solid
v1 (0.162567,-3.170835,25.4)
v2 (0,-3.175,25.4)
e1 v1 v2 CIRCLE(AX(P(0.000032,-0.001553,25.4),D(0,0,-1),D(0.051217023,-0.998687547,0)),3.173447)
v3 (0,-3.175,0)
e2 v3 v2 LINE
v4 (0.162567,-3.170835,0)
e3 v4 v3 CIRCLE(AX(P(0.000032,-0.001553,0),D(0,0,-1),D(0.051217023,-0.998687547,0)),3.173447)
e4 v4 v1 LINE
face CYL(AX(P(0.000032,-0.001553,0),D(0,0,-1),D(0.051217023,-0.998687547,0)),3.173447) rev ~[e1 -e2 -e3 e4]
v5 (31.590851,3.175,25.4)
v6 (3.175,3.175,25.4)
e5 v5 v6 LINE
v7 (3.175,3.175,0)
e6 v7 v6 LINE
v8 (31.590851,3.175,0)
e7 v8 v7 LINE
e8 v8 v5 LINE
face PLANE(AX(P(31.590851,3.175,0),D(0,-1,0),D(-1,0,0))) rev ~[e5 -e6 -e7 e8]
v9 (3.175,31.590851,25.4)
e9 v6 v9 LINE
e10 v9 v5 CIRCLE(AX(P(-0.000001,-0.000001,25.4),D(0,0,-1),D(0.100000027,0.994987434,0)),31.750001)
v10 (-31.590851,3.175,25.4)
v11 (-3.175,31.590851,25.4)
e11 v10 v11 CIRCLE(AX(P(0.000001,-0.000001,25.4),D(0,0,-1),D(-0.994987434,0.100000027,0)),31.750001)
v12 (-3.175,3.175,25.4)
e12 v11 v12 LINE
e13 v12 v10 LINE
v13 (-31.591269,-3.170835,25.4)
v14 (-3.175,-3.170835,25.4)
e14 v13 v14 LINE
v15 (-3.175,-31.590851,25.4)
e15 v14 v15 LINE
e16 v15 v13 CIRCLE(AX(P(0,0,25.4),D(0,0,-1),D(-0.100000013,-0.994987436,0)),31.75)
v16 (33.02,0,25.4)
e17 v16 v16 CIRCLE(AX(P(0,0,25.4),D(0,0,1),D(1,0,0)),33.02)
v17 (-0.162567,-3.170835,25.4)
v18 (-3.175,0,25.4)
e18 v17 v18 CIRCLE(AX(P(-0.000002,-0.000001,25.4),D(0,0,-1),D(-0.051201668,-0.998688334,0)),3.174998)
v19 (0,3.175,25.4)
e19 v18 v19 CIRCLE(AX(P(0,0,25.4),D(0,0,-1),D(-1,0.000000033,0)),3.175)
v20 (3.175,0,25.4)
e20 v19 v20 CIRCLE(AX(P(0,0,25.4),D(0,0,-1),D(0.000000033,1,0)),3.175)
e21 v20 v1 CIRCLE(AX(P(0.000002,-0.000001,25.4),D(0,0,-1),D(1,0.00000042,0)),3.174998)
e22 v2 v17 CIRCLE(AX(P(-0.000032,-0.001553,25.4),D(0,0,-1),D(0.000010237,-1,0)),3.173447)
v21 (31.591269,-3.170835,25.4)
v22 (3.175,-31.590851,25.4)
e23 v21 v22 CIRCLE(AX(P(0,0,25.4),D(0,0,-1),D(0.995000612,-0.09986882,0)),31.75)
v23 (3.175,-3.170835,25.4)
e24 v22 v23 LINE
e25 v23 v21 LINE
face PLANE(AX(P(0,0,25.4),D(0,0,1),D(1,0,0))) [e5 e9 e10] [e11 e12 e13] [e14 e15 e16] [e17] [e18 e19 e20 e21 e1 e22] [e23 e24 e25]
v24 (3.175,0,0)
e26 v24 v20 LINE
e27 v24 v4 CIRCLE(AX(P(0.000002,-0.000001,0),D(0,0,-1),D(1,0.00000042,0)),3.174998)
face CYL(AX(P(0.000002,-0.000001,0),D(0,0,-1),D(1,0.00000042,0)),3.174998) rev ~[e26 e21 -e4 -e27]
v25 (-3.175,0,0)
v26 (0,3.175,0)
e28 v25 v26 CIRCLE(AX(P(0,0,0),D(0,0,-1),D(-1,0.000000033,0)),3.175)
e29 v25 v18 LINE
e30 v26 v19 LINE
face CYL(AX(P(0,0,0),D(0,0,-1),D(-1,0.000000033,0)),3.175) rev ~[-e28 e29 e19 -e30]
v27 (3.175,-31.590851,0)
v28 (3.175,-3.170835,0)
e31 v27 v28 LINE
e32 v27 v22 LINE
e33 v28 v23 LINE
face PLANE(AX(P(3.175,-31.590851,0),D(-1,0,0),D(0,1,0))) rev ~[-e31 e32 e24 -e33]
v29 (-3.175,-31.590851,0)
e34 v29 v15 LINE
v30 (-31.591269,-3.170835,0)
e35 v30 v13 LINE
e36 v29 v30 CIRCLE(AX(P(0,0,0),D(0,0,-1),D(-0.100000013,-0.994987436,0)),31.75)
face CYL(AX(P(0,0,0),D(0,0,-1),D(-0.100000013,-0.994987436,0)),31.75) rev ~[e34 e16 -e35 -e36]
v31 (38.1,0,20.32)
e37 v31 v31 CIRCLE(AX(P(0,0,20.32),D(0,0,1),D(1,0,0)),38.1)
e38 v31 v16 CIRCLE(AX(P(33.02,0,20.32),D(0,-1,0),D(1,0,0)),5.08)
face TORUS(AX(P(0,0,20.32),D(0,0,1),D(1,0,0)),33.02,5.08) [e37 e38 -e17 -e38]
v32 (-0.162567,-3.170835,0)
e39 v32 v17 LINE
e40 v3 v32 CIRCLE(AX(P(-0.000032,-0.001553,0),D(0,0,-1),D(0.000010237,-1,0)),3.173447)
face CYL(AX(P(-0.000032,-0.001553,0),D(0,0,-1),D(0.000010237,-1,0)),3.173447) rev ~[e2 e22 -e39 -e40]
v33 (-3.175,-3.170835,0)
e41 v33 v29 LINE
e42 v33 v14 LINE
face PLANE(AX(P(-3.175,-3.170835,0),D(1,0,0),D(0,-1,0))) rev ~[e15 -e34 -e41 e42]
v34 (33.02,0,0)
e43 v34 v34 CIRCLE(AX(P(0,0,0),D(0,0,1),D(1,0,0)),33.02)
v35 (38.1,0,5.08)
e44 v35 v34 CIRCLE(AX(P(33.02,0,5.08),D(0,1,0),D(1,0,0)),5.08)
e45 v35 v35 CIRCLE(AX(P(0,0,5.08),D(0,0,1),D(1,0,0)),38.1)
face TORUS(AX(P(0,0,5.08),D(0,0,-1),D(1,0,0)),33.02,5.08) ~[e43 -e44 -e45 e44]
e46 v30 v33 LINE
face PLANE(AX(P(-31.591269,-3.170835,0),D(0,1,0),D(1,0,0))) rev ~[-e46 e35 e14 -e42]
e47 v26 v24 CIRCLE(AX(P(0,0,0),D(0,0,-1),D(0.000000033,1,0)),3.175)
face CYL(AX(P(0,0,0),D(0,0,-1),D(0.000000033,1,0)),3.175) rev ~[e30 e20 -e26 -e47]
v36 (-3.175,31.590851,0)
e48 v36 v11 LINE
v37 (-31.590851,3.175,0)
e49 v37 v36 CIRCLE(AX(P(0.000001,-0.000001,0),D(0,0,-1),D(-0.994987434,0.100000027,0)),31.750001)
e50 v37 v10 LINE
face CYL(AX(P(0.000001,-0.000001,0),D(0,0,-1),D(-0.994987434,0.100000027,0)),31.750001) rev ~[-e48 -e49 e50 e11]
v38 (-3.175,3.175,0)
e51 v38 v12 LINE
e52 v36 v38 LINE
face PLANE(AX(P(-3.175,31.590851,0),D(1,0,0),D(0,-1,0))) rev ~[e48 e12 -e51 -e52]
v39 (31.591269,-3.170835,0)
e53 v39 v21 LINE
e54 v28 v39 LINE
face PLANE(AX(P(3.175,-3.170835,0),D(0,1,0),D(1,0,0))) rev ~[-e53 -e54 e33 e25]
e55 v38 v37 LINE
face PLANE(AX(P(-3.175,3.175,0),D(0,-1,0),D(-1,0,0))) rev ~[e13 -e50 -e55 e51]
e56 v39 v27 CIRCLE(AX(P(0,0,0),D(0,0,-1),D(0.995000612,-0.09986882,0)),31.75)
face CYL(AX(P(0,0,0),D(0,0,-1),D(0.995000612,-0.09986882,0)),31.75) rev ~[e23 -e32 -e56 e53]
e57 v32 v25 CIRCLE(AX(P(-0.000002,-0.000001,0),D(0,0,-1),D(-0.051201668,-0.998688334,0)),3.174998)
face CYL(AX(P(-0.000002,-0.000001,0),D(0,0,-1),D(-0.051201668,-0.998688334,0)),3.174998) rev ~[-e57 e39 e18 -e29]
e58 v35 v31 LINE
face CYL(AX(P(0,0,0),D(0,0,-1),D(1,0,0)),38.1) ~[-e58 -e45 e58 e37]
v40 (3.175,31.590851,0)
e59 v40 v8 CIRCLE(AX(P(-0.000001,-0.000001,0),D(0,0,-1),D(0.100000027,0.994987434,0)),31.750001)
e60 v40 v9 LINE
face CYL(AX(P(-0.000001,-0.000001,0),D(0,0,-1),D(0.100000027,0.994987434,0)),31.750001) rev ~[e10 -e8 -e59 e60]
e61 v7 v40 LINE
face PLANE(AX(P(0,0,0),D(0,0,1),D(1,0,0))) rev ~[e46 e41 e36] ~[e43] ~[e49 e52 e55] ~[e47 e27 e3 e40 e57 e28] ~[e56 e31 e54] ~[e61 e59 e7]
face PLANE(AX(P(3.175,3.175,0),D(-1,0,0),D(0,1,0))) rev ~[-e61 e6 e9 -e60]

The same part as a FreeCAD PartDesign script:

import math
import FreeCAD as App
import Part
import Sketcher
Q = App.Units.Quantity


def edges_at(feature, points):
    """Names of the edges that pass closest to the given points."""
    edges = feature.Shape.Edges
    near = lambda p: min(range(len(edges)), key=lambda i: edges[i].distToShape(Part.Vertex(*p))[0])
    return sorted({f"Edge{near(p) + 1}" for p in points})

doc = App.newDocument("Part")
params = doc.addObject("Spreadsheet::Sheet", "Params")
for row, (alias, value) in enumerate([
    ("sketch1_diameter", "3 in"),
    ("sketch1_radius", "1.25 in"),
    ("sketch1_radius2", "1.25 in"),
    ("sketch1_radius3", "1.25 in"),
    ("sketch1_radius4", "1.25 in"),
    ("pad1_length", "1 in"),
    ("fillet_radius", "0.2 in"),
], start=1):
    params.set(f"A{row}", alias)
    params.set(f"B{row}", "=" + value)
    params.setAlias(f"B{row}", alias)

body = doc.addObject("PartDesign::Body", "Body")

sketch1 = doc.addObject("Sketcher::SketchObject", "Sketch")
body.addObject(sketch1)
sketch1.AttachmentSupport = (doc.XY_Plane, [""])
sketch1.MapMode = "FlatFace"
sketch1.addGeometry(Part.Circle(App.Vector(0, 0, 0), App.Vector(0, 0, 1), 38.1), False)
sketch1.addGeometry(Part.LineSegment(App.Vector(-3.175, -3.170835, 0), App.Vector(-3.175, -31.590851, 0)), False)
sketch1.addGeometry(Part.ArcOfCircle(Part.Circle(App.Vector(0, 0, 0), App.Vector(0, 0, 1), 31.75), math.radians(-174.268383), math.radians(-95.739171)), False)
sketch1.addGeometry(Part.LineSegment(App.Vector(-31.591269, -3.170835, 0), App.Vector(-3.175, -3.170835, 0)), False)
sketch1.addGeometry(Part.ArcOfCircle(Part.Circle(App.Vector(0, 0, 0), App.Vector(0, 0, 1), 31.75), math.radians(-84.260829), math.radians(-5.731617)), False)
sketch1.addGeometry(Part.LineSegment(App.Vector(3.175, -31.590851, 0), App.Vector(3.175, -3.170835, 0)), False)
sketch1.addGeometry(Part.LineSegment(App.Vector(3.175, -3.170835, 0), App.Vector(31.591269, -3.170835, 0)), False)
sketch1.addGeometry(Part.ArcOfCircle(Part.Circle(App.Vector(0, 0, 0), App.Vector(0, 0, 1), 3.175), math.radians(90.000002), math.radians(179.999998)), False)
sketch1.addGeometry(Part.ArcOfCircle(Part.Circle(App.Vector(0, 0, 0), App.Vector(0, 0, 1), 3.175), math.radians(0.000002), math.radians(89.999998)), False)
sketch1.addGeometry(Part.ArcOfCircle(Part.Circle(App.Vector(0.000002, -0.000001, 0), App.Vector(0, 0, 1), 3.174998), math.radians(-87.065077), math.radians(0.000024)), False)
sketch1.addGeometry(Part.ArcOfCircle(Part.Circle(App.Vector(0.000032, -0.001553, 0), App.Vector(0, 0, 1), 3.173447), math.radians(-90.000587), math.radians(-87.064196)), False)
sketch1.addGeometry(Part.ArcOfCircle(Part.Circle(App.Vector(-0.000032, -0.001553, 0), App.Vector(0, 0, 1), 3.173447), math.radians(-92.935804), math.radians(-89.999413)), False)
sketch1.addGeometry(Part.ArcOfCircle(Part.Circle(App.Vector(-0.000002, -0.000001, 0), App.Vector(0, 0, 1), 3.174998), math.radians(179.999976), math.radians(267.065077)), False)
sketch1.addGeometry(Part.ArcOfCircle(Part.Circle(App.Vector(0.000001, -0.000001, 0), App.Vector(0, 0, 1), 31.750001), math.radians(95.739172), math.radians(174.260828)), False)
sketch1.addGeometry(Part.LineSegment(App.Vector(-3.175, 31.590851, 0), App.Vector(-3.175, 3.175, 0)), False)
sketch1.addGeometry(Part.LineSegment(App.Vector(-3.175, 3.175, 0), App.Vector(-31.590851, 3.175, 0)), False)
sketch1.addGeometry(Part.ArcOfCircle(Part.Circle(App.Vector(-0.000001, -0.000001, 0), App.Vector(0, 0, 1), 31.750001), math.radians(5.739172), math.radians(84.260828)), False)
sketch1.addGeometry(Part.LineSegment(App.Vector(31.590851, 3.175, 0), App.Vector(3.175, 3.175, 0)), False)
sketch1.addGeometry(Part.LineSegment(App.Vector(3.175, 3.175, 0), App.Vector(3.175, 31.590851, 0)), False)
sketch1.addConstraint(Sketcher.Constraint("Coincident", 1, 2, 2, 2))
sketch1.addConstraint(Sketcher.Constraint("Coincident", 2, 1, 3, 1))
sketch1.addConstraint(Sketcher.Constraint("Coincident", 3, 2, 1, 1))
sketch1.addConstraint(Sketcher.Constraint("Coincident", 4, 1, 5, 1))
sketch1.addConstraint(Sketcher.Constraint("Coincident", 5, 2, 6, 1))
sketch1.addConstraint(Sketcher.Constraint("Coincident", 6, 2, 4, 2))
sketch1.addConstraint(Sketcher.Constraint("Coincident", 7, 1, 8, 2))
sketch1.addConstraint(Sketcher.Constraint("Coincident", 8, 1, 9, 2))
sketch1.addConstraint(Sketcher.Constraint("Coincident", 9, 1, 10, 2))
sketch1.addConstraint(Sketcher.Constraint("Coincident", 10, 1, 11, 2))
sketch1.addConstraint(Sketcher.Constraint("Coincident", 11, 1, 12, 2))
sketch1.addConstraint(Sketcher.Constraint("Coincident", 12, 1, 7, 2))
sketch1.addConstraint(Sketcher.Constraint("Coincident", 13, 1, 14, 1))
sketch1.addConstraint(Sketcher.Constraint("Coincident", 14, 2, 15, 1))
sketch1.addConstraint(Sketcher.Constraint("Coincident", 15, 2, 13, 2))
sketch1.addConstraint(Sketcher.Constraint("Coincident", 16, 1, 17, 1))
sketch1.addConstraint(Sketcher.Constraint("Coincident", 17, 2, 18, 1))
sketch1.addConstraint(Sketcher.Constraint("Coincident", 18, 2, 16, 2))
sketch1.addConstraint(Sketcher.Constraint("Vertical", 1))
sketch1.addConstraint(Sketcher.Constraint("Horizontal", 3))
sketch1.addConstraint(Sketcher.Constraint("Vertical", 5))
sketch1.addConstraint(Sketcher.Constraint("Horizontal", 6))
sketch1.addConstraint(Sketcher.Constraint("Vertical", 14))
sketch1.addConstraint(Sketcher.Constraint("Horizontal", 15))
sketch1.addConstraint(Sketcher.Constraint("Horizontal", 17))
sketch1.addConstraint(Sketcher.Constraint("Vertical", 18))
sketch1.addConstraint(Sketcher.Constraint("Coincident", 0, 3, -1, 1))
sketch1.addConstraint(Sketcher.Constraint("Coincident", 2, 3, -1, 1))
sketch1.addConstraint(Sketcher.Constraint("Coincident", 4, 3, -1, 1))
sketch1.addConstraint(Sketcher.Constraint("Coincident", 7, 3, -1, 1))
sketch1.addConstraint(Sketcher.Constraint("Coincident", 8, 3, -1, 1))
sketch1.addConstraint(Sketcher.Constraint("Coincident", 9, 3, -1, 1))
sketch1.addConstraint(Sketcher.Constraint("Coincident", 12, 3, -1, 1))
sketch1.addConstraint(Sketcher.Constraint("Coincident", 13, 3, -1, 1))
sketch1.addConstraint(Sketcher.Constraint("Coincident", 16, 3, -1, 1))
sketch1.addConstraint(Sketcher.Constraint("PointOnObject", 7, 1, -2))
sketch1.addConstraint(Sketcher.Constraint("PointOnObject", 8, 1, -1))
sketch1.addConstraint(Sketcher.Constraint("PointOnObject", 10, 1, -2))
sketch1.addConstraint(Sketcher.Constraint("PointOnObject", 12, 1, -1))
sketch1.addConstraint(Sketcher.Constraint("Diameter", 0, Q("3 in")))
sketch1.addConstraint(Sketcher.Constraint("Radius", 2, Q("1.25 in")))
sketch1.addConstraint(Sketcher.Constraint("Radius", 4, Q("1.25 in")))
sketch1.addConstraint(Sketcher.Constraint("Radius", 13, Q("1.25 in")))
sketch1.addConstraint(Sketcher.Constraint("Radius", 16, Q("1.25 in")))
sketch1.addConstraint(Sketcher.Constraint("Radius", 7, Q("0.125 in")))
sketch1.addConstraint(Sketcher.Constraint("DistanceX", 1, 2, 4, 1, Q("0.25 in")))
sketch1.addConstraint(Sketcher.Constraint("DistanceX", 13, 1, 18, 2, Q("0.25 in")))
sketch1.addConstraint(Sketcher.Constraint("DistanceX", 1, 2, -1, 1, Q("0.125 in")))
sketch1.addConstraint(Sketcher.Constraint("DistanceY", 10, 1, -1, 1, Q("0.125 in")))
sketch1.addConstraint(Sketcher.Constraint("DistanceX", 13, 1, -1, 1, Q("0.125 in")))
sketch1.addConstraint(Sketcher.Constraint("DistanceY", -1, 1, 14, 2, Q("0.125 in")))
sketch1.addConstraint(Sketcher.Constraint("DistanceY", -1, 1, 16, 1, Q("0.125 in")))
sketch1.addConstraint(Sketcher.Constraint("Radius", 10, Q("3.173447 mm")))
sketch1.addConstraint(Sketcher.Constraint("Radius", 11, Q("3.173447 mm")))
sketch1.addConstraint(Sketcher.Constraint("DistanceX", 3, 1, 3, 2, Q("28.416269 mm")))
sketch1.addConstraint(Sketcher.Constraint("DistanceX", 6, 1, 6, 2, Q("28.416269 mm")))
sketch1.addConstraint(Sketcher.Constraint("DistanceX", 11, 3, 9, 1, Q("0.162599 mm")))
sketch1.addConstraint(Sketcher.Constraint("DistanceX", 11, 1, 10, 3, Q("0.162599 mm")))
sketch1.setExpression("Constraints[39]", "Params.sketch1_diameter")
sketch1.setExpression("Constraints[40]", "Params.sketch1_radius")
sketch1.setExpression("Constraints[41]", "Params.sketch1_radius2")
sketch1.setExpression("Constraints[42]", "Params.sketch1_radius3")
sketch1.setExpression("Constraints[43]", "Params.sketch1_radius4")
pad1 = doc.addObject("PartDesign::Pad", "Pad")
body.addObject(pad1)
pad1.Profile = sketch1
pad1.setExpression("Length", "Params.pad1_length")
doc.recompute()

fillet = doc.addObject("PartDesign::Fillet", "Fillet")
body.addObject(fillet)
fillet.Base = (pad1, edges_at(pad1, [(-38.1, 0, 0), (38.1, 0, 12.7), (-38.1, 0, 25.4)]))
fillet.setExpression("Radius", "Params.fillet_radius")

doc.recompute()
